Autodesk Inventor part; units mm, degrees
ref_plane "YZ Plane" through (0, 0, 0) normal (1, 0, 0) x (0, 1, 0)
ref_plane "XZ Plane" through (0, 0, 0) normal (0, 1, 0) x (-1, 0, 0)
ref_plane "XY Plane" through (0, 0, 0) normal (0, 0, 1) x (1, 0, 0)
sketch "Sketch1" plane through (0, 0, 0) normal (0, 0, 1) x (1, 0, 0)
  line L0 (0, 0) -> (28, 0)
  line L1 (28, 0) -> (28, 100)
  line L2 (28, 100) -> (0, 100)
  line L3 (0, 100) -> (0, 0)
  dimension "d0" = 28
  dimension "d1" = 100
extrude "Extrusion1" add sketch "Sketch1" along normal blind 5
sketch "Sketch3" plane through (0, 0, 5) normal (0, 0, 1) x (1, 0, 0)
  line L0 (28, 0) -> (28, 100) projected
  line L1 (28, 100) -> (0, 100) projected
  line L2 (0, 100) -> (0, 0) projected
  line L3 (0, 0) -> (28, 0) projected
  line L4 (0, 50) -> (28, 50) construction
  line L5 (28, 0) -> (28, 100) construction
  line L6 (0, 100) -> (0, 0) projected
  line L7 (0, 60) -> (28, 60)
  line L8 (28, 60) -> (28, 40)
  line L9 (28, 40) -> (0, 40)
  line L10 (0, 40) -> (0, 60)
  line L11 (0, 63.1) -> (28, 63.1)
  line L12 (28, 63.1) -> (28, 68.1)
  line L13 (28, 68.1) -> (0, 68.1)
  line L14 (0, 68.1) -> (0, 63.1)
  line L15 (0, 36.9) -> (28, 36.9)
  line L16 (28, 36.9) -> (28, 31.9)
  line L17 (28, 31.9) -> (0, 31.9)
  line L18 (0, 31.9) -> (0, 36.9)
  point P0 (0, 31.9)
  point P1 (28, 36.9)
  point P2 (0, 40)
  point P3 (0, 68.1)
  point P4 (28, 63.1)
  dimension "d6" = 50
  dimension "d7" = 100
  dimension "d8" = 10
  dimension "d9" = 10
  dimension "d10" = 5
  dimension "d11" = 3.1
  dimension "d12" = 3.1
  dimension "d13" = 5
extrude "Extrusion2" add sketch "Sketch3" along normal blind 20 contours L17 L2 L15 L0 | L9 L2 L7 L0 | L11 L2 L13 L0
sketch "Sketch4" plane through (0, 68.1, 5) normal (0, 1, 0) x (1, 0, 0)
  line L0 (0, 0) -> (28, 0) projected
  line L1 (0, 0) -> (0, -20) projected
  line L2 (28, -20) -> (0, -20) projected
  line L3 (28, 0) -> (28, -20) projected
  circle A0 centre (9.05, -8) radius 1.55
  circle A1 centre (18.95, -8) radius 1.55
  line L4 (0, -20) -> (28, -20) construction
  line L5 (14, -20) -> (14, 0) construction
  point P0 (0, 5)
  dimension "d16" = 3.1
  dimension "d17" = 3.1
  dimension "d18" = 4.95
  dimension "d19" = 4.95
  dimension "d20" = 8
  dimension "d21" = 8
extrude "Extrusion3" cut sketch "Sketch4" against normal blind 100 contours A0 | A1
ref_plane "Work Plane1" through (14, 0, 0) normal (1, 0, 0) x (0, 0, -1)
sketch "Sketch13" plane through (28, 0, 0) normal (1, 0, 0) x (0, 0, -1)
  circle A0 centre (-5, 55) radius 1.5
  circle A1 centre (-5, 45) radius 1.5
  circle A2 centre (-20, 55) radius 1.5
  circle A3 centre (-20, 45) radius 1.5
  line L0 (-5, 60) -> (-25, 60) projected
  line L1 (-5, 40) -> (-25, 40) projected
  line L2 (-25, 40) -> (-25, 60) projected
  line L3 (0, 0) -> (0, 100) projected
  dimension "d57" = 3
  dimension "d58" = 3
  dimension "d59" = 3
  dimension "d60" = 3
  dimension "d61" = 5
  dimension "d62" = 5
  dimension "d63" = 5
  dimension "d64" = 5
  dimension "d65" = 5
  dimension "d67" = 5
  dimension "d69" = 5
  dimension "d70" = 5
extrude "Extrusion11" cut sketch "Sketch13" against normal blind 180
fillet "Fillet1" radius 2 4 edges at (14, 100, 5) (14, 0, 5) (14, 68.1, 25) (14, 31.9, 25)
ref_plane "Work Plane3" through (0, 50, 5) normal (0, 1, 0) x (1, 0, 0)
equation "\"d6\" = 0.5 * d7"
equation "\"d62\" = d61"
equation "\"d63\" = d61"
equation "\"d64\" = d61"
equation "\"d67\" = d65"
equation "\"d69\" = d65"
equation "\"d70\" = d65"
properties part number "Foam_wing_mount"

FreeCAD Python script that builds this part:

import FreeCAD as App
import Part
import Sketcher

V = App.Vector
Q = App.Units.Quantity


def edges_at(feature, points):
    """Names of the edges that pass closest to the given points."""
    edges = feature.Shape.Edges
    near = lambda p: min(range(len(edges)), key=lambda i: edges[i].distToShape(Part.Vertex(*p))[0])
    return sorted({f"Edge{near(p) + 1}" for p in points})


def add_polygon(sketch, points):
    """Adds a closed chain of lines whose ends are joined by coincident constraints."""
    first, n = sketch.GeometryCount, len(points)
    for a, b in zip(points, points[1:] + points[:1]):
        sketch.addGeometry(Part.LineSegment(App.Vector(*a, 0), App.Vector(*b, 0)), False)
    for i in range(n):
        sketch.addConstraint(Sketcher.Constraint("Coincident", first + i, 2, first + (i + 1) % n, 1))

doc = App.newDocument("Part")
params = doc.addObject("Spreadsheet::Sheet", "Params")
for row, (alias, value) in enumerate([
    ("sketch1_width", "28 mm"),
    ("sketch1_height", "100 mm"),
    ("pad1_length", "5 mm"),
    ("sketch2_height", "5 mm"),
    ("sketch2_width", "28 mm"),
    ("sketch2_height2", "20 mm"),
    ("pad2_length", "20 mm"),
    ("sketch3_diameter", "3.1 mm"),
    ("pocket1_length", "100 mm"),
    ("sketch4_diameter", "3 mm"),
    ("pocket2_length", "180 mm"),
    ("fillet_radius", "2 mm"),
], start=1):
    params.set(f"A{row}", alias)
    params.set(f"B{row}", "=" + value)
    params.setAlias(f"B{row}", alias)

body = doc.addObject("PartDesign::Body", "Body")

# Sketch on XY plane
sketch1 = body.newObject("Sketcher::SketchObject", "Sketch")
sketch1.AttachmentSupport = (doc.getObject("XY_Plane"), [""])
sketch1.MapMode = "FlatFace"
add_polygon(sketch1, [(0, 100), (0, 0), (28, 0), (28, 100)])  # lines 0-3
sketch1.addConstraint(Sketcher.Constraint("Vertical", 0))
sketch1.addConstraint(Sketcher.Constraint("Horizontal", 1))
sketch1.addConstraint(Sketcher.Constraint("Vertical", 2))
sketch1.addConstraint(Sketcher.Constraint("Horizontal", 3))
sketch1.addConstraint(Sketcher.Constraint("Coincident", 0, 2, -1, 1))
sketch1.addConstraint(Sketcher.Constraint("DistanceX", 1, 1, 1, 2, Q("28 mm")))
sketch1.addConstraint(Sketcher.Constraint("DistanceY", 0, 2, 0, 1, Q("100 mm")))
sketch1.setExpression("Constraints[9]", "Params.sketch1_width")
sketch1.setExpression("Constraints[10]", "Params.sketch1_height")
pad1 = body.newObject("PartDesign::Pad", "Pad")
pad1.Profile = sketch1
pad1.setExpression("Length", "Params.pad1_length")

# Sketch on XY plane
sketch2 = body.newObject("Sketcher::SketchObject", "Sketch001")
sketch2.AttachmentSupport = (doc.getObject("XY_Plane"), [""])
sketch2.MapMode = "FlatFace"
sketch2.AttachmentOffset = App.Placement(V(0, 0, 5), App.Rotation())
add_polygon(sketch2, [(0, 31.9), (28, 31.9), (28, 36.9), (0, 36.9)])  # lines 0-3
add_polygon(sketch2, [(0, 40), (28, 40), (28, 60), (0, 60)])  # lines 4-7
add_polygon(sketch2, [(0, 63.1), (28, 63.1), (28, 68.1), (0, 68.1)])  # lines 8-11
sketch2.addConstraint(Sketcher.Constraint("Horizontal", 0))
sketch2.addConstraint(Sketcher.Constraint("Vertical", 1))
sketch2.addConstraint(Sketcher.Constraint("Horizontal", 2))
sketch2.addConstraint(Sketcher.Constraint("Vertical", 3))
sketch2.addConstraint(Sketcher.Constraint("Horizontal", 4))
sketch2.addConstraint(Sketcher.Constraint("Vertical", 5))
sketch2.addConstraint(Sketcher.Constraint("Horizontal", 6))
sketch2.addConstraint(Sketcher.Constraint("Vertical", 7))
sketch2.addConstraint(Sketcher.Constraint("Horizontal", 8))
sketch2.addConstraint(Sketcher.Constraint("Vertical", 9))
sketch2.addConstraint(Sketcher.Constraint("Horizontal", 10))
sketch2.addConstraint(Sketcher.Constraint("Vertical", 11))
sketch2.addConstraint(Sketcher.Constraint("PointOnObject", 2, 2, -2))
sketch2.addConstraint(Sketcher.Constraint("PointOnObject", 6, 2, -2))
sketch2.addConstraint(Sketcher.Constraint("PointOnObject", 10, 2, -2))
sketch2.addConstraint(Sketcher.Constraint("Vertical", 1, 2, 4, 2))
sketch2.addConstraint(Sketcher.Constraint("Vertical", 5, 2, 8, 2))
sketch2.addConstraint(Sketcher.Constraint("Equal", 3, 9))
sketch2.addConstraint(Sketcher.Constraint("DistanceY", 1, 1, 1, 2, Q("5 mm")))
sketch2.addConstraint(Sketcher.Constraint("DistanceY", 1, 2, 4, 2, Q("3.1 mm")))
sketch2.addConstraint(Sketcher.Constraint("DistanceY", 5, 2, 8, 2, Q("3.1 mm")))
sketch2.addConstraint(Sketcher.Constraint("DistanceX", 0, 1, 0, 2, Q("28 mm")))
sketch2.addConstraint(Sketcher.Constraint("DistanceY", 5, 1, 5, 2, Q("20 mm")))
sketch2.addConstraint(Sketcher.Constraint("DistanceY", -1, 1, 4, 2, Q("40 mm")))
sketch2.setExpression("Constraints[30]", "Params.sketch2_height")
sketch2.setExpression("Constraints[33]", "Params.sketch2_width")
sketch2.setExpression("Constraints[34]", "Params.sketch2_height2")
pad2 = body.newObject("PartDesign::Pad", "Pad001")
pad2.Profile = sketch2
pad2.setExpression("Length", "Params.pad2_length")

# Sketch on XZ plane
sketch3 = body.newObject("Sketcher::SketchObject", "Sketch002")
sketch3.AttachmentSupport = (doc.getObject("XZ_Plane"), [""])
sketch3.MapMode = "FlatFace"
sketch3.AttachmentOffset = App.Placement(V(0, 0, -68.1), App.Rotation())
sketch3.addGeometry(Part.Circle(V(9.1, 13, 0), V(0, 0, 1), 1.6), False)
sketch3.addGeometry(Part.Circle(V(18.9, 13, 0), V(0, 0, 1), 1.6), False)
sketch3.addConstraint(Sketcher.Constraint("Equal", 0, 1))
sketch3.addConstraint(Sketcher.Constraint("Horizontal", 0, 3, 1, 3))
sketch3.addConstraint(Sketcher.Constraint("Diameter", 0, Q("3.1 mm")))
sketch3.addConstraint(Sketcher.Constraint("DistanceY", -1, 1, 0, 3, Q("13 mm")))
sketch3.addConstraint(Sketcher.Constraint("DistanceX", 0, 3, 1, 3, Q("9.9 mm")))
sketch3.addConstraint(Sketcher.Constraint("DistanceX", -1, 1, 0, 3, Q("9.05 mm")))
sketch3.setExpression("Constraints[2]", "Params.sketch3_diameter")
pocket1 = body.newObject("PartDesign::Pocket", "Pocket")
pocket1.Profile = sketch3
pocket1.setExpression("Length", "Params.pocket1_length")
pocket1.Reversed = True

# Sketch on YZ plane
sketch4 = body.newObject("Sketcher::SketchObject", "Sketch003")
sketch4.AttachmentSupport = (doc.getObject("YZ_Plane"), [""])
sketch4.MapMode = "FlatFace"
sketch4.AttachmentOffset = App.Placement(V(0, 0, 28), App.Rotation())
sketch4.addGeometry(Part.Circle(V(55, 5, 0), V(0, 0, 1), 1.5), False)
sketch4.addGeometry(Part.Circle(V(45, 5, 0), V(0, 0, 1), 1.5), False)
sketch4.addGeometry(Part.Circle(V(55, 20, 0), V(0, 0, 1), 1.5), False)
sketch4.addGeometry(Part.Circle(V(45, 20, 0), V(0, 0, 1), 1.5), False)
sketch4.addConstraint(Sketcher.Constraint("Equal", 0, 1))
sketch4.addConstraint(Sketcher.Constraint("Equal", 1, 2))
sketch4.addConstraint(Sketcher.Constraint("Equal", 2, 3))
sketch4.addConstraint(Sketcher.Constraint("Horizontal", 0, 3, 1, 3))
sketch4.addConstraint(Sketcher.Constraint("Horizontal", 2, 3, 3, 3))
sketch4.addConstraint(Sketcher.Constraint("Vertical", 0, 3, 2, 3))
sketch4.addConstraint(Sketcher.Constraint("Vertical", 1, 3, 3, 3))
sketch4.addConstraint(Sketcher.Constraint("Diameter", 0, Q("3 mm")))
sketch4.addConstraint(Sketcher.Constraint("DistanceY", -1, 1, 0, 3, Q("5 mm")))
sketch4.addConstraint(Sketcher.Constraint("DistanceX", -1, 1, 0, 3, Q("55 mm")))
sketch4.addConstraint(Sketcher.Constraint("DistanceX", -1, 1, 1, 3, Q("45 mm")))
sketch4.addConstraint(Sketcher.Constraint("DistanceY", -1, 1, 2, 3, Q("20 mm")))
sketch4.setExpression("Constraints[7]", "Params.sketch4_diameter")
pocket2 = body.newObject("PartDesign::Pocket", "Pocket001")
pocket2.Profile = sketch4
pocket2.setExpression("Length", "Params.pocket2_length")
doc.recompute()

fillet = body.newObject("PartDesign::Fillet", "Fillet")
fillet.Base = (pocket2, edges_at(pocket2, [
    (14, 100, 5),
    (14, 0, 5),
    (14, 68.1, 25),
    (14, 31.9, 25),
]))
fillet.setExpression("Radius", "Params.fillet_radius")

doc.recompute()
